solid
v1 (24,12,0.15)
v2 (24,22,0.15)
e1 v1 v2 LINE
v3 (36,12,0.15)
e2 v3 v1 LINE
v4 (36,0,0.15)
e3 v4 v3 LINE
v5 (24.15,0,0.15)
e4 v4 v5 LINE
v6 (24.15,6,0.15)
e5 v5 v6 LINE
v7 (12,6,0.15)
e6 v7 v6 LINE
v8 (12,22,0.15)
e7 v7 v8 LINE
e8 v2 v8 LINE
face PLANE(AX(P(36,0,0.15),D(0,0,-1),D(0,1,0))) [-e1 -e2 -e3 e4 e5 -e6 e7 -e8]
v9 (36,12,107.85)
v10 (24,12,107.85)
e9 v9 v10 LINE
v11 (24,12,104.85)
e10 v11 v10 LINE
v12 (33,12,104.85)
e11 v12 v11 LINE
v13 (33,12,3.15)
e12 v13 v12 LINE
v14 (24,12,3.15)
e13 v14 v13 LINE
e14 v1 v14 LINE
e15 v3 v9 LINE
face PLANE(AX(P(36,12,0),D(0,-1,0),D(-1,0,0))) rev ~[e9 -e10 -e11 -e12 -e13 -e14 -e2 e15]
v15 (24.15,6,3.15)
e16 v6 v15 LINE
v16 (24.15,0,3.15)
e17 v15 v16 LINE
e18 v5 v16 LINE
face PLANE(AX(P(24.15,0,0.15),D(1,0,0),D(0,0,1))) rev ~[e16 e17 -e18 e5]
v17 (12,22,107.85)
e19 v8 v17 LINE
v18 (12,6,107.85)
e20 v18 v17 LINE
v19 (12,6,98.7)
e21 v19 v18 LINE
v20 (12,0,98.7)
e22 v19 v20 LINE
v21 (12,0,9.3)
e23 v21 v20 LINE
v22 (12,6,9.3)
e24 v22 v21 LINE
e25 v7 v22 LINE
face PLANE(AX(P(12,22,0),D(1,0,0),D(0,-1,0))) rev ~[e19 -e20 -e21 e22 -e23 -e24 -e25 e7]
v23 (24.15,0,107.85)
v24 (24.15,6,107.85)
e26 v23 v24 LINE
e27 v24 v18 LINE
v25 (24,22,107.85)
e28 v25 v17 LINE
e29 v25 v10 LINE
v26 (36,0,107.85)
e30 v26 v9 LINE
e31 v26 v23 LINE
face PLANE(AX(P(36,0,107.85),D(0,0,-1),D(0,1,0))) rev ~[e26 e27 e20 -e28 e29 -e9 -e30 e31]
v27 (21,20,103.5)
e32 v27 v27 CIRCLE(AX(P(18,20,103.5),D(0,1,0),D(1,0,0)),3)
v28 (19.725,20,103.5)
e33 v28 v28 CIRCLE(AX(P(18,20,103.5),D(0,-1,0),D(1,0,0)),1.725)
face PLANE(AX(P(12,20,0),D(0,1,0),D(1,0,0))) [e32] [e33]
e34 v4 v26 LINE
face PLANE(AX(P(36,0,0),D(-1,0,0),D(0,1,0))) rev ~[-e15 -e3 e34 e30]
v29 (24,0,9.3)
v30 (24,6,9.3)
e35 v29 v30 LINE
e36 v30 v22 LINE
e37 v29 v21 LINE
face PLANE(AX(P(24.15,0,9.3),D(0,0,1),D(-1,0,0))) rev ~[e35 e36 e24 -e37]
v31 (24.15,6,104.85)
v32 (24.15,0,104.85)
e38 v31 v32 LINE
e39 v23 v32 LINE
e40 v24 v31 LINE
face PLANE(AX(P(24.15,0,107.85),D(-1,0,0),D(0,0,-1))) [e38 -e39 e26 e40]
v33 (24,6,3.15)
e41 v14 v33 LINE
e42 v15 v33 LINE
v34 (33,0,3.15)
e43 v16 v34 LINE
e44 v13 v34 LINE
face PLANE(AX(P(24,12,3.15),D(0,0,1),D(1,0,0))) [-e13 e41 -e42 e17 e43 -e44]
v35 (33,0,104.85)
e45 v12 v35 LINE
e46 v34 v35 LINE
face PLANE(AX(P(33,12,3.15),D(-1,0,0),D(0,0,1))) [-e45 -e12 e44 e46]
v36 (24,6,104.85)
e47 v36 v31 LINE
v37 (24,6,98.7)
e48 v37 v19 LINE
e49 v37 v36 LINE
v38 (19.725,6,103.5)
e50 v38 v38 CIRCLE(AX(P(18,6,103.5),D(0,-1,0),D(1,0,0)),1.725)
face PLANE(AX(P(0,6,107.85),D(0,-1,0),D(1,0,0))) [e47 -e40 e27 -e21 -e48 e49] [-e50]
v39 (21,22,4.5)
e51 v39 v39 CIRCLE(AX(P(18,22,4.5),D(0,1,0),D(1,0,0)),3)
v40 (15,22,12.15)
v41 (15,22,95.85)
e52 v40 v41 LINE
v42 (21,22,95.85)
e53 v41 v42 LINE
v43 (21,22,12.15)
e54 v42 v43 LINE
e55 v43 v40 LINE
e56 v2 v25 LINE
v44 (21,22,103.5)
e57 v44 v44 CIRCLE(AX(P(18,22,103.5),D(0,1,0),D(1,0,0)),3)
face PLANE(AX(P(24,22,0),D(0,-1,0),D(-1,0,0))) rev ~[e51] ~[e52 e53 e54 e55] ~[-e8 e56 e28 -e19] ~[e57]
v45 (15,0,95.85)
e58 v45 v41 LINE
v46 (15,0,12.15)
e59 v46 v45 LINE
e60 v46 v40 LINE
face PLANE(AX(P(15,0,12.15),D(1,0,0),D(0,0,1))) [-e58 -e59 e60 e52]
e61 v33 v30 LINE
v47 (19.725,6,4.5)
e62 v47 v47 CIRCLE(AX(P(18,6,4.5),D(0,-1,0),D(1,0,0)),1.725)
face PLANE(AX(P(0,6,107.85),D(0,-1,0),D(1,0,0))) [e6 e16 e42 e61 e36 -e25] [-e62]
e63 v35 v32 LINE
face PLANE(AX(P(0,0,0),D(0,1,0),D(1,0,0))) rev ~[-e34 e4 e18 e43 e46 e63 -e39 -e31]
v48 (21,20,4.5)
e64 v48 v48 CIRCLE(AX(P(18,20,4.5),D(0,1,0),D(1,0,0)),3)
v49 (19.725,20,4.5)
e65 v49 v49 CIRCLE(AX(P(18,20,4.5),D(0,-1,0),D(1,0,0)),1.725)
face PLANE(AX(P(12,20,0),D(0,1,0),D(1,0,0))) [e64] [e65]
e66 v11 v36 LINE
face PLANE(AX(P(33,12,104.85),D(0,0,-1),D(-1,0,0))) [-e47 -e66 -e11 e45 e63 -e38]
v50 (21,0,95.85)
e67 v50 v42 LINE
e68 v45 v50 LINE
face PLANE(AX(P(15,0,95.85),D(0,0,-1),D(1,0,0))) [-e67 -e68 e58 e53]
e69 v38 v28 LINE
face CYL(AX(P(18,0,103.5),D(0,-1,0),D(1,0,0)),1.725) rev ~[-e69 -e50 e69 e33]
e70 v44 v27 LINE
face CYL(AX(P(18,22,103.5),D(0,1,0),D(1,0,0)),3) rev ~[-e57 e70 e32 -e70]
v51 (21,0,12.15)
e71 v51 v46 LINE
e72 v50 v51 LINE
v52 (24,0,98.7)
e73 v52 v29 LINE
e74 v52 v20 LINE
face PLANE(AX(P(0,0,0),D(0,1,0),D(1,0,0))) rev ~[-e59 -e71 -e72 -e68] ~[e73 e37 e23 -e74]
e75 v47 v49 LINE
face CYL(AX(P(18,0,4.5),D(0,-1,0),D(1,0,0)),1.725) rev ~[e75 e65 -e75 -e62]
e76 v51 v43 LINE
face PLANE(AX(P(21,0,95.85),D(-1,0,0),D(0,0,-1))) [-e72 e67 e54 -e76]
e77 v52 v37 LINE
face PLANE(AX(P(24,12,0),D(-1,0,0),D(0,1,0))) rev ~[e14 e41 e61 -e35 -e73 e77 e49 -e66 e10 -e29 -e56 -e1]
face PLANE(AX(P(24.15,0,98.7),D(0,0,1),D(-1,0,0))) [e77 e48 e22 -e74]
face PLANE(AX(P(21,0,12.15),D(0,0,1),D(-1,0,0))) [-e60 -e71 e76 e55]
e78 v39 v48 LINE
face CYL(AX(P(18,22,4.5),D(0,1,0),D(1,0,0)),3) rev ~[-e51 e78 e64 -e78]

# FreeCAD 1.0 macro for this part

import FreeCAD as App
import Part
import Sketcher
Q = App.Units.Quantity


def add_polygon(sketch, points):
    """Adds a closed chain of lines whose ends are joined by coincident constraints."""
    first, n = sketch.GeometryCount, len(points)
    for a, b in zip(points, points[1:] + points[:1]):
        sketch.addGeometry(Part.LineSegment(App.Vector(*a, 0), App.Vector(*b, 0)), False)
    for i in range(n):
        sketch.addConstraint(Sketcher.Constraint("Coincident", first + i, 2, first + (i + 1) % n, 1))

doc = App.newDocument("Part")
body = doc.addObject("PartDesign::Body", "Body")

# Sketch on XY plane
sketch1 = doc.addObject("Sketcher::SketchObject", "Sketch")
body.addObject(sketch1)
sketch1.AttachmentSupport = (doc.XY_Plane, [""])
sketch1.MapMode = "FlatFace"
add_polygon(sketch1, [(0, 12), (0, 0), (36, 0), (36, 12), (24, 12), (24, 22), (12, 22), (12, 12)])  # lines 0-7
sketch1.addConstraint([
    Sketcher.Constraint("Vertical", 0),
    Sketcher.Constraint("Horizontal", 1),
    Sketcher.Constraint("Vertical", 2),
    Sketcher.Constraint("Horizontal", 3),
    Sketcher.Constraint("Vertical", 4),
    Sketcher.Constraint("Horizontal", 5),
    Sketcher.Constraint("Vertical", 6),
    Sketcher.Constraint("Horizontal", 7),
    Sketcher.Constraint("Coincident", 0, 2, -1, 1),
    Sketcher.Constraint("Horizontal", 3, 2, 6, 2),
    Sketcher.Constraint("Equal", 3, 5),
    Sketcher.Constraint("Equal", 5, 7),
    Sketcher.Constraint("Equal", 7, 0),
    Sketcher.Constraint("DistanceX", 1, 1, 1, 2, Q("36 mm")),
    Sketcher.Constraint("DistanceY", 4, 1, 4, 2, Q("10 mm")),
])
pad1 = doc.addObject("PartDesign::Pad", "Pad")
body.addObject(pad1)
pad1.Profile = sketch1
pad1.Length = 108

# Sketch on XZ plane
sketch2 = doc.addObject("Sketcher::SketchObject", "Sketch001")
body.addObject(sketch2)
sketch2.AttachmentSupport = (doc.XZ_Plane, [""])
sketch2.MapMode = "FlatFace"
sketch2.addGeometry([
    Part.Circle(App.Vector(18, 4.5, 0), App.Vector(0, 0, 1), 1.7),
    Part.Circle(App.Vector(18, 103.5, 0), App.Vector(0, 0, 1), 1.7),
], False)
sketch2.addConstraint([
    Sketcher.Constraint("Equal", 0, 1),
    Sketcher.Constraint("Vertical", 0, 3, 1, 3),
    Sketcher.Constraint("Diameter", 0, Q("3.45 mm")),
    Sketcher.Constraint("DistanceX", -1, 1, 0, 3, Q("18 mm")),
    Sketcher.Constraint("DistanceY", -1, 1, 0, 3, Q("4.5 mm")),
    Sketcher.Constraint("DistanceY", 0, 3, 1, 3, Q("99 mm")),
])
pocket1 = doc.addObject("PartDesign::Pocket", "Pocket")
body.addObject(pocket1)
pocket1.Profile = sketch2
pocket1.Length = 20

# Sketch on XZ plane
sketch3 = doc.addObject("Sketcher::SketchObject", "Sketch002")
body.addObject(sketch3)
sketch3.AttachmentSupport = (doc.XZ_Plane, [""])
sketch3.MapMode = "FlatFace"
sketch3.AttachmentOffset = App.Placement(App.Vector(0, 0, -22), App.Rotation())
sketch3.addGeometry([
    Part.Circle(App.Vector(18, 4.5, 0), App.Vector(0, 0, 1), 3),
    Part.Circle(App.Vector(18, 103.5, 0), App.Vector(0, 0, 1), 3),
], False)
sketch3.addConstraint([
    Sketcher.Constraint("Equal", 0, 1),
    Sketcher.Constraint("Vertical", 0, 3, 1, 3),
    Sketcher.Constraint("Diameter", 0, Q("6 mm")),
    Sketcher.Constraint("DistanceX", -1, 1, 0, 3, Q("18 mm")),
    Sketcher.Constraint("DistanceY", 0, 3, 1, 3, Q("99 mm")),
    Sketcher.Constraint("DistanceY", -1, 1, 0, 3, Q("4.5 mm")),
])
pocket2 = doc.addObject("PartDesign::Pocket", "Pocket001")
body.addObject(pocket2)
pocket2.Profile = sketch3
pocket2.Length = 2
pocket2.Reversed = True

# Sketch on YZ plane
sketch4 = doc.addObject("Sketcher::SketchObject", "Sketch003")
body.addObject(sketch4)
sketch4.AttachmentSupport = (doc.YZ_Plane, [""])
sketch4.MapMode = "FlatFace"
sketch4.AttachmentOffset = App.Placement(App.Vector(0, 0, 36), App.Rotation())
add_polygon(sketch4, [(12, 108), (0, 108), (0, 107.85), (12, 107.85)])  # lines 0-3
add_polygon(sketch4, [(12, 0.15), (0, 0.15), (0, 0), (12, 0)])  # lines 4-7
sketch4.addConstraint([
    Sketcher.Constraint("Horizontal", 0),
    Sketcher.Constraint("Vertical", 1),
    Sketcher.Constraint("Horizontal", 2),
    Sketcher.Constraint("Vertical", 3),
    Sketcher.Constraint("Horizontal", 4),
    Sketcher.Constraint("Vertical", 5),
    Sketcher.Constraint("Horizontal", 6),
    Sketcher.Constraint("Vertical", 7),
    Sketcher.Constraint("Coincident", 5, 2, -1, 1),
    Sketcher.Constraint("PointOnObject", 0, 2, -2),
    Sketcher.Constraint("Vertical", 3, 2, 6, 2),
    Sketcher.Constraint("Equal", 3, 5),
    Sketcher.Constraint("DistanceX", 0, 2, 0, 1, Q("12 mm")),
    Sketcher.Constraint("DistanceY", 1, 2, 1, 1, Q("0.15 mm")),
    Sketcher.Constraint("DistanceY", -1, 1, 0, 2, Q("108 mm")),
])
pocket3 = doc.addObject("PartDesign::Pocket", "Pocket002")
body.addObject(pocket3)
pocket3.Profile = sketch4
pocket3.Type = "ThroughAll"

# Sketch on YZ plane
sketch5 = doc.addObject("Sketcher::SketchObject", "Sketch004")
body.addObject(sketch5)
sketch5.AttachmentSupport = (doc.YZ_Plane, [""])
sketch5.MapMode = "FlatFace"
sketch5.AttachmentOffset = App.Placement(App.Vector(0, 0, 24), App.Rotation())
add_polygon(sketch5, [(12, 0.15), (12, 0), (22, 0), (22, 0.15)])  # lines 0-3
add_polygon(sketch5, [(12, 107.85), (22, 107.85), (22, 108), (12, 108)])  # lines 4-7
sketch5.addConstraint([
    Sketcher.Constraint("Vertical", 0),
    Sketcher.Constraint("Horizontal", 1),
    Sketcher.Constraint("Vertical", 2),
    Sketcher.Constraint("Horizontal", 3),
    Sketcher.Constraint("Horizontal", 4),
    Sketcher.Constraint("Vertical", 5),
    Sketcher.Constraint("Horizontal", 6),
    Sketcher.Constraint("Vertical", 7),
    Sketcher.Constraint("PointOnObject", 0, 2, -1),
    Sketcher.Constraint("Vertical", 2, 2, 4, 2),
    Sketcher.Constraint("Vertical", 3, 2, 6, 2),
    Sketcher.Constraint("Equal", 2, 5),
    Sketcher.Constraint("DistanceY", 0, 2, 0, 1, Q("0.15 mm")),
    Sketcher.Constraint("DistanceX", 1, 1, 1, 2, Q("10 mm")),
    Sketcher.Constraint("DistanceX", -1, 1, 0, 2, Q("12 mm")),
    Sketcher.Constraint("DistanceY", -1, 1, 5, 2, Q("108 mm")),
])
pocket4 = doc.addObject("PartDesign::Pocket", "Pocket003")
body.addObject(pocket4)
pocket4.Profile = sketch5
pocket4.Type = "ThroughAll"

# Sketch on XZ plane
sketch6 = doc.addObject("Sketcher::SketchObject", "Sketch005")
body.addObject(sketch6)
sketch6.AttachmentSupport = (doc.XZ_Plane, [""])
sketch6.MapMode = "FlatFace"
add_polygon(sketch6, [(12, 9), (12, 0), (24, 0), (24, 9)])  # lines 0-3
add_polygon(sketch6, [(24, 108), (12, 108), (12, 99), (24, 99)])  # lines 4-7
sketch6.addConstraint([
    Sketcher.Constraint("Vertical", 0),
    Sketcher.Constraint("Horizontal", 1),
    Sketcher.Constraint("Vertical", 2),
    Sketcher.Constraint("Horizontal", 3),
    Sketcher.Constraint("Horizontal", 4),
    Sketcher.Constraint("Vertical", 5),
    Sketcher.Constraint("Horizontal", 6),
    Sketcher.Constraint("Vertical", 7),
    Sketcher.Constraint("Vertical", 3, 2, 4, 2),
    Sketcher.Constraint("Vertical", 2, 2, 6, 2),
    Sketcher.Constraint("Equal", 2, 5),
    Sketcher.Constraint("DistanceY", 0, 2, 0, 1, Q("9.15 mm")),
    Sketcher.Constraint("DistanceX", -1, 1, 0, 2, Q("11.85 mm")),
    Sketcher.Constraint("DistanceX", 1, 1, 1, 2, Q("12.3 mm")),
    Sketcher.Constraint("DistanceY", -1, 1, 2, 2, Q("9.3 mm")),
    Sketcher.Constraint("DistanceY", -1, 1, 5, 2, Q("98.7 mm")),
])
pocket5 = doc.addObject("PartDesign::Pocket", "Pocket004")
body.addObject(pocket5)
pocket5.Profile = sketch6
pocket5.Length = 6

# Sketch on XZ plane
sketch7 = doc.addObject("Sketcher::SketchObject", "Sketch006")
body.addObject(sketch7)
sketch7.AttachmentSupport = (doc.XZ_Plane, [""])
sketch7.MapMode = "FlatFace"
add_polygon(sketch7, [(21, 96), (15, 96), (15, 12), (21, 12)])  # lines 0-3
sketch7.addConstraint([
    Sketcher.Constraint("Horizontal", 0),
    Sketcher.Constraint("Vertical", 1),
    Sketcher.Constraint("Horizontal", 2),
    Sketcher.Constraint("Vertical", 3),
    Sketcher.Constraint("DistanceX", 0, 2, 0, 1, Q("6 mm")),
    Sketcher.Constraint("DistanceY", 1, 2, 1, 1, Q("83.7 mm")),
    Sketcher.Constraint("DistanceX", -1, 1, 0, 2, Q("15 mm")),
    Sketcher.Constraint("DistanceY", -1, 1, 0, 2, Q("95.85 mm")),
])
pocket6 = doc.addObject("PartDesign::Pocket", "Pocket005")
body.addObject(pocket6)
pocket6.Profile = sketch7
pocket6.Type = "ThroughAll"

# Sketch on XZ plane
sketch8 = doc.addObject("Sketcher::SketchObject", "Sketch007")
body.addObject(sketch8)
sketch8.AttachmentSupport = (doc.XZ_Plane, [""])
sketch8.MapMode = "FlatFace"
sketch8.AttachmentOffset = App.Placement(App.Vector(0, 0, -12), App.Rotation())
add_polygon(sketch8, [(24, 105), (33, 105), (33, 3), (24, 3)])  # lines 0-3
add_polygon(sketch8, [(3, 105), (12, 105), (12, 3), (3, 3)])  # lines 4-7
sketch8.addConstraint([
    Sketcher.Constraint("Horizontal", 0),
    Sketcher.Constraint("Vertical", 1),
    Sketcher.Constraint("Horizontal", 2),
    Sketcher.Constraint("Vertical", 3),
    Sketcher.Constraint("Horizontal", 4),
    Sketcher.Constraint("Vertical", 5),
    Sketcher.Constraint("Horizontal", 6),
    Sketcher.Constraint("Vertical", 7),
    Sketcher.Constraint("Horizontal", 3, 2, 4, 2),
    Sketcher.Constraint("Horizontal", 2, 2, 5, 2),
    Sketcher.Constraint("Equal", 2, 4),
    Sketcher.Constraint("DistanceX", -1, 1, 6, 2, Q("3 mm")),
    Sketcher.Constraint("DistanceX", 0, 1, 0, 2, Q("9 mm")),
    Sketcher.Constraint("DistanceY", 1, 2, 1, 1, Q("101.7 mm")),
    Sketcher.Constraint("DistanceX", -1, 1, 0, 2, Q("33 mm")),
    Sketcher.Constraint("DistanceY", -1, 1, 0, 2, Q("104.85 mm")),
])
pocket7 = doc.addObject("PartDesign::Pocket", "Pocket006")
body.addObject(pocket7)
pocket7.Profile = sketch8
pocket7.Type = "ThroughAll"
pocket7.Reversed = True

# Sketch on XY plane
sketch9 = doc.addObject("Sketcher::SketchObject", "Sketch008")
body.addObject(sketch9)
sketch9.AttachmentSupport = (doc.XY_Plane, [""])
sketch9.MapMode = "FlatFace"
sketch9.AttachmentOffset = App.Placement(App.Vector(0, 0, 107.85), App.Rotation())
add_polygon(sketch9, [(0, 12), (0, 0), (12, 0), (12, 12)])  # lines 0-3
sketch9.addConstraint([
    Sketcher.Constraint("Vertical", 0),
    Sketcher.Constraint("Horizontal", 1),
    Sketcher.Constraint("Vertical", 2),
    Sketcher.Constraint("Horizontal", 3),
    Sketcher.Constraint("Coincident", 0, 2, -1, 1),
    Sketcher.Constraint("DistanceY", 0, 2, 0, 1, Q("12 mm")),
    Sketcher.Constraint("DistanceX", 1, 1, 1, 2, Q("11.85 mm")),
])
pocket8 = doc.addObject("PartDesign::Pocket", "Pocket007")
body.addObject(pocket8)
pocket8.Profile = sketch9
pocket8.Type = "ThroughAll"

# Sketch on XY plane
sketch10 = doc.addObject("Sketcher::SketchObject", "Sketch009")
body.addObject(sketch10)
sketch10.AttachmentSupport = (doc.XY_Plane, [""])
sketch10.MapMode = "FlatFace"
sketch10.AttachmentOffset = App.Placement(App.Vector(0, 0, 0.15), App.Rotation())
add_polygon(sketch10, [(12, 6), (11.85, 6), (11.85, 12), (12, 12)])  # lines 0-3
sketch10.addConstraint([
    Sketcher.Constraint("Horizontal", 0),
    Sketcher.Constraint("Vertical", 1),
    Sketcher.Constraint("Horizontal", 2),
    Sketcher.Constraint("Vertical", 3),
    Sketcher.Constraint("DistanceY", 1, 1, 1, 2, Q("6 mm")),
    Sketcher.Constraint("DistanceY", -1, 1, 0, 2, Q("6 mm")),
    Sketcher.Constraint("DistanceX", -1, 1, 2, 2, Q("12 mm")),
    Sketcher.Constraint("DistanceX", 0, 2, 0, 1, Q("0.15 mm")),
])
pocket9 = doc.addObject("PartDesign::Pocket", "Pocket008")
body.addObject(pocket9)
pocket9.Profile = sketch10
pocket9.Type = "ThroughAll"
pocket9.Reversed = True

doc.recompute()
